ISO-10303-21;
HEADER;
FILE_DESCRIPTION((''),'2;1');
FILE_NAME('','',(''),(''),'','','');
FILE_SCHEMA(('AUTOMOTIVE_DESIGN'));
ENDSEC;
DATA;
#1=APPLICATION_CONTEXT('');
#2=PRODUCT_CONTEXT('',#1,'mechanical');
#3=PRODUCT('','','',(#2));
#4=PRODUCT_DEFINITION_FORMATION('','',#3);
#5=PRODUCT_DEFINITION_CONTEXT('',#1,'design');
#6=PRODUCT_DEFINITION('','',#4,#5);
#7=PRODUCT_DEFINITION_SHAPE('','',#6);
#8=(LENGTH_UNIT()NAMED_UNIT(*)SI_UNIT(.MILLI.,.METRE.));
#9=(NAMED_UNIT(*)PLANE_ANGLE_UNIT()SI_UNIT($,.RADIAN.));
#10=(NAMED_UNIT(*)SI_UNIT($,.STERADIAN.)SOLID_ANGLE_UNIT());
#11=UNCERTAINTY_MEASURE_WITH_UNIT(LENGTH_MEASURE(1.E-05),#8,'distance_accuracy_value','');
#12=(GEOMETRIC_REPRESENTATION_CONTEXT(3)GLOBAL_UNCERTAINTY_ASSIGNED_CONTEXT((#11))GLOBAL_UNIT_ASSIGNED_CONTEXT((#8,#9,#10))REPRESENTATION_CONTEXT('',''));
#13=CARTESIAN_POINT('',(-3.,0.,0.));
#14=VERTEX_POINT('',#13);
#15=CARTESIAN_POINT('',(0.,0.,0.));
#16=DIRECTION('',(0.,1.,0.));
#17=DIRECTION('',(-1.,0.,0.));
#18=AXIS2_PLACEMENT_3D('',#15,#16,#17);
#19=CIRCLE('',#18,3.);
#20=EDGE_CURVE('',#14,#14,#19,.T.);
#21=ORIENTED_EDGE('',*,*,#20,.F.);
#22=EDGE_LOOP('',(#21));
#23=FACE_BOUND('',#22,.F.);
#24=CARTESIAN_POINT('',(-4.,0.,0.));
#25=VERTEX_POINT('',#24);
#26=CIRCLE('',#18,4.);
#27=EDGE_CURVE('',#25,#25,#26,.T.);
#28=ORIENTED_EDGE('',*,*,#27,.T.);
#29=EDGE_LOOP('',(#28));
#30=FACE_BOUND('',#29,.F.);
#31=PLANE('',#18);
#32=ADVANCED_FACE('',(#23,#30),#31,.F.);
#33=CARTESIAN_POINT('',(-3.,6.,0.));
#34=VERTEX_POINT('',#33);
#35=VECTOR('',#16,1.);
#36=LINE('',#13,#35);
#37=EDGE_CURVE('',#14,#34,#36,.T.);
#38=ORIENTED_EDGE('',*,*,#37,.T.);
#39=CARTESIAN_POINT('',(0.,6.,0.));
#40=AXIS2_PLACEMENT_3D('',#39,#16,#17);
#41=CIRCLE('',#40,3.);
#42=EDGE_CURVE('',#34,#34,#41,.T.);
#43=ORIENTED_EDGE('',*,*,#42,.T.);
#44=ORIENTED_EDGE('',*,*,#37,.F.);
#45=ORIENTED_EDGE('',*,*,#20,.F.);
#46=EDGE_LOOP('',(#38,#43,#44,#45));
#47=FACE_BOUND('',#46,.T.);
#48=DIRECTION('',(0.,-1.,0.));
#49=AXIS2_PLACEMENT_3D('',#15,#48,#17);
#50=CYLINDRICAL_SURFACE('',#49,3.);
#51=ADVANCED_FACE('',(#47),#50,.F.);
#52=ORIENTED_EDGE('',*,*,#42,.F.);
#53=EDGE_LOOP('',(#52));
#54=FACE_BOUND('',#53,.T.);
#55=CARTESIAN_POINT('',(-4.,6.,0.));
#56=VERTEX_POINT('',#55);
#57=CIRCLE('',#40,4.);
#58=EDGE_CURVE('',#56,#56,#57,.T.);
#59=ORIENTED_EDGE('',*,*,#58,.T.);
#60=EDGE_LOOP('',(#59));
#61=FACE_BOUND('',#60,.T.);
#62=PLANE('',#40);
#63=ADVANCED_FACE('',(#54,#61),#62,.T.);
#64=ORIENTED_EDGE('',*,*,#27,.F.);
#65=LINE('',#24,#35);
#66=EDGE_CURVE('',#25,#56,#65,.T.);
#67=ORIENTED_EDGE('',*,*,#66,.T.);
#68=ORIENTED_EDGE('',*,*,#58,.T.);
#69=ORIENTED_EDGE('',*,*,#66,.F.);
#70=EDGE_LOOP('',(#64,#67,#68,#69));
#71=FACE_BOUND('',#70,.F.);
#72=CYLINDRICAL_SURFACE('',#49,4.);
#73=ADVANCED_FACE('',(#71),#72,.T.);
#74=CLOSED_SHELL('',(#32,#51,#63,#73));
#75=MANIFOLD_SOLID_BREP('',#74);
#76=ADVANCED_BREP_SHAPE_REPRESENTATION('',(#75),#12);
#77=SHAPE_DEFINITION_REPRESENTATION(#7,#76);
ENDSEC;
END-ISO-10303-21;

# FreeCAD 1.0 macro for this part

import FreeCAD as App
import Part
import Sketcher

V = App.Vector

doc = App.newDocument("Part")
body = doc.addObject("PartDesign::Body", "Body")

# Sketch on XZ plane
sketch1 = doc.addObject("Sketcher::SketchObject", "Sketch")
body.addObject(sketch1)
sketch1.AttachmentSupport = (doc.XZ_Plane, [""])
sketch1.MapMode = "FlatFace"
sketch1.addGeometry(Part.Circle(V(0, 0, 0), V(0, 0, 1), 4), False)
sketch1.addGeometry(Part.Circle(V(0, 0, 0), V(0, 0, 1), 3), False)
sketch1.addConstraint(Sketcher.Constraint("Coincident", 0, 3, -1, 1))
sketch1.addConstraint(Sketcher.Constraint("Coincident", 1, 3, -1, 1))
sketch1.addConstraint(Sketcher.Constraint("Diameter", 0, 8.0))
sketch1.addConstraint(Sketcher.Constraint("Diameter", 1, 6.0))
pad1 = doc.addObject("PartDesign::Pad", "Pad")
body.addObject(pad1)
pad1.Profile = sketch1
pad1.Length = 6
pad1.Reversed = True

doc.recompute()
